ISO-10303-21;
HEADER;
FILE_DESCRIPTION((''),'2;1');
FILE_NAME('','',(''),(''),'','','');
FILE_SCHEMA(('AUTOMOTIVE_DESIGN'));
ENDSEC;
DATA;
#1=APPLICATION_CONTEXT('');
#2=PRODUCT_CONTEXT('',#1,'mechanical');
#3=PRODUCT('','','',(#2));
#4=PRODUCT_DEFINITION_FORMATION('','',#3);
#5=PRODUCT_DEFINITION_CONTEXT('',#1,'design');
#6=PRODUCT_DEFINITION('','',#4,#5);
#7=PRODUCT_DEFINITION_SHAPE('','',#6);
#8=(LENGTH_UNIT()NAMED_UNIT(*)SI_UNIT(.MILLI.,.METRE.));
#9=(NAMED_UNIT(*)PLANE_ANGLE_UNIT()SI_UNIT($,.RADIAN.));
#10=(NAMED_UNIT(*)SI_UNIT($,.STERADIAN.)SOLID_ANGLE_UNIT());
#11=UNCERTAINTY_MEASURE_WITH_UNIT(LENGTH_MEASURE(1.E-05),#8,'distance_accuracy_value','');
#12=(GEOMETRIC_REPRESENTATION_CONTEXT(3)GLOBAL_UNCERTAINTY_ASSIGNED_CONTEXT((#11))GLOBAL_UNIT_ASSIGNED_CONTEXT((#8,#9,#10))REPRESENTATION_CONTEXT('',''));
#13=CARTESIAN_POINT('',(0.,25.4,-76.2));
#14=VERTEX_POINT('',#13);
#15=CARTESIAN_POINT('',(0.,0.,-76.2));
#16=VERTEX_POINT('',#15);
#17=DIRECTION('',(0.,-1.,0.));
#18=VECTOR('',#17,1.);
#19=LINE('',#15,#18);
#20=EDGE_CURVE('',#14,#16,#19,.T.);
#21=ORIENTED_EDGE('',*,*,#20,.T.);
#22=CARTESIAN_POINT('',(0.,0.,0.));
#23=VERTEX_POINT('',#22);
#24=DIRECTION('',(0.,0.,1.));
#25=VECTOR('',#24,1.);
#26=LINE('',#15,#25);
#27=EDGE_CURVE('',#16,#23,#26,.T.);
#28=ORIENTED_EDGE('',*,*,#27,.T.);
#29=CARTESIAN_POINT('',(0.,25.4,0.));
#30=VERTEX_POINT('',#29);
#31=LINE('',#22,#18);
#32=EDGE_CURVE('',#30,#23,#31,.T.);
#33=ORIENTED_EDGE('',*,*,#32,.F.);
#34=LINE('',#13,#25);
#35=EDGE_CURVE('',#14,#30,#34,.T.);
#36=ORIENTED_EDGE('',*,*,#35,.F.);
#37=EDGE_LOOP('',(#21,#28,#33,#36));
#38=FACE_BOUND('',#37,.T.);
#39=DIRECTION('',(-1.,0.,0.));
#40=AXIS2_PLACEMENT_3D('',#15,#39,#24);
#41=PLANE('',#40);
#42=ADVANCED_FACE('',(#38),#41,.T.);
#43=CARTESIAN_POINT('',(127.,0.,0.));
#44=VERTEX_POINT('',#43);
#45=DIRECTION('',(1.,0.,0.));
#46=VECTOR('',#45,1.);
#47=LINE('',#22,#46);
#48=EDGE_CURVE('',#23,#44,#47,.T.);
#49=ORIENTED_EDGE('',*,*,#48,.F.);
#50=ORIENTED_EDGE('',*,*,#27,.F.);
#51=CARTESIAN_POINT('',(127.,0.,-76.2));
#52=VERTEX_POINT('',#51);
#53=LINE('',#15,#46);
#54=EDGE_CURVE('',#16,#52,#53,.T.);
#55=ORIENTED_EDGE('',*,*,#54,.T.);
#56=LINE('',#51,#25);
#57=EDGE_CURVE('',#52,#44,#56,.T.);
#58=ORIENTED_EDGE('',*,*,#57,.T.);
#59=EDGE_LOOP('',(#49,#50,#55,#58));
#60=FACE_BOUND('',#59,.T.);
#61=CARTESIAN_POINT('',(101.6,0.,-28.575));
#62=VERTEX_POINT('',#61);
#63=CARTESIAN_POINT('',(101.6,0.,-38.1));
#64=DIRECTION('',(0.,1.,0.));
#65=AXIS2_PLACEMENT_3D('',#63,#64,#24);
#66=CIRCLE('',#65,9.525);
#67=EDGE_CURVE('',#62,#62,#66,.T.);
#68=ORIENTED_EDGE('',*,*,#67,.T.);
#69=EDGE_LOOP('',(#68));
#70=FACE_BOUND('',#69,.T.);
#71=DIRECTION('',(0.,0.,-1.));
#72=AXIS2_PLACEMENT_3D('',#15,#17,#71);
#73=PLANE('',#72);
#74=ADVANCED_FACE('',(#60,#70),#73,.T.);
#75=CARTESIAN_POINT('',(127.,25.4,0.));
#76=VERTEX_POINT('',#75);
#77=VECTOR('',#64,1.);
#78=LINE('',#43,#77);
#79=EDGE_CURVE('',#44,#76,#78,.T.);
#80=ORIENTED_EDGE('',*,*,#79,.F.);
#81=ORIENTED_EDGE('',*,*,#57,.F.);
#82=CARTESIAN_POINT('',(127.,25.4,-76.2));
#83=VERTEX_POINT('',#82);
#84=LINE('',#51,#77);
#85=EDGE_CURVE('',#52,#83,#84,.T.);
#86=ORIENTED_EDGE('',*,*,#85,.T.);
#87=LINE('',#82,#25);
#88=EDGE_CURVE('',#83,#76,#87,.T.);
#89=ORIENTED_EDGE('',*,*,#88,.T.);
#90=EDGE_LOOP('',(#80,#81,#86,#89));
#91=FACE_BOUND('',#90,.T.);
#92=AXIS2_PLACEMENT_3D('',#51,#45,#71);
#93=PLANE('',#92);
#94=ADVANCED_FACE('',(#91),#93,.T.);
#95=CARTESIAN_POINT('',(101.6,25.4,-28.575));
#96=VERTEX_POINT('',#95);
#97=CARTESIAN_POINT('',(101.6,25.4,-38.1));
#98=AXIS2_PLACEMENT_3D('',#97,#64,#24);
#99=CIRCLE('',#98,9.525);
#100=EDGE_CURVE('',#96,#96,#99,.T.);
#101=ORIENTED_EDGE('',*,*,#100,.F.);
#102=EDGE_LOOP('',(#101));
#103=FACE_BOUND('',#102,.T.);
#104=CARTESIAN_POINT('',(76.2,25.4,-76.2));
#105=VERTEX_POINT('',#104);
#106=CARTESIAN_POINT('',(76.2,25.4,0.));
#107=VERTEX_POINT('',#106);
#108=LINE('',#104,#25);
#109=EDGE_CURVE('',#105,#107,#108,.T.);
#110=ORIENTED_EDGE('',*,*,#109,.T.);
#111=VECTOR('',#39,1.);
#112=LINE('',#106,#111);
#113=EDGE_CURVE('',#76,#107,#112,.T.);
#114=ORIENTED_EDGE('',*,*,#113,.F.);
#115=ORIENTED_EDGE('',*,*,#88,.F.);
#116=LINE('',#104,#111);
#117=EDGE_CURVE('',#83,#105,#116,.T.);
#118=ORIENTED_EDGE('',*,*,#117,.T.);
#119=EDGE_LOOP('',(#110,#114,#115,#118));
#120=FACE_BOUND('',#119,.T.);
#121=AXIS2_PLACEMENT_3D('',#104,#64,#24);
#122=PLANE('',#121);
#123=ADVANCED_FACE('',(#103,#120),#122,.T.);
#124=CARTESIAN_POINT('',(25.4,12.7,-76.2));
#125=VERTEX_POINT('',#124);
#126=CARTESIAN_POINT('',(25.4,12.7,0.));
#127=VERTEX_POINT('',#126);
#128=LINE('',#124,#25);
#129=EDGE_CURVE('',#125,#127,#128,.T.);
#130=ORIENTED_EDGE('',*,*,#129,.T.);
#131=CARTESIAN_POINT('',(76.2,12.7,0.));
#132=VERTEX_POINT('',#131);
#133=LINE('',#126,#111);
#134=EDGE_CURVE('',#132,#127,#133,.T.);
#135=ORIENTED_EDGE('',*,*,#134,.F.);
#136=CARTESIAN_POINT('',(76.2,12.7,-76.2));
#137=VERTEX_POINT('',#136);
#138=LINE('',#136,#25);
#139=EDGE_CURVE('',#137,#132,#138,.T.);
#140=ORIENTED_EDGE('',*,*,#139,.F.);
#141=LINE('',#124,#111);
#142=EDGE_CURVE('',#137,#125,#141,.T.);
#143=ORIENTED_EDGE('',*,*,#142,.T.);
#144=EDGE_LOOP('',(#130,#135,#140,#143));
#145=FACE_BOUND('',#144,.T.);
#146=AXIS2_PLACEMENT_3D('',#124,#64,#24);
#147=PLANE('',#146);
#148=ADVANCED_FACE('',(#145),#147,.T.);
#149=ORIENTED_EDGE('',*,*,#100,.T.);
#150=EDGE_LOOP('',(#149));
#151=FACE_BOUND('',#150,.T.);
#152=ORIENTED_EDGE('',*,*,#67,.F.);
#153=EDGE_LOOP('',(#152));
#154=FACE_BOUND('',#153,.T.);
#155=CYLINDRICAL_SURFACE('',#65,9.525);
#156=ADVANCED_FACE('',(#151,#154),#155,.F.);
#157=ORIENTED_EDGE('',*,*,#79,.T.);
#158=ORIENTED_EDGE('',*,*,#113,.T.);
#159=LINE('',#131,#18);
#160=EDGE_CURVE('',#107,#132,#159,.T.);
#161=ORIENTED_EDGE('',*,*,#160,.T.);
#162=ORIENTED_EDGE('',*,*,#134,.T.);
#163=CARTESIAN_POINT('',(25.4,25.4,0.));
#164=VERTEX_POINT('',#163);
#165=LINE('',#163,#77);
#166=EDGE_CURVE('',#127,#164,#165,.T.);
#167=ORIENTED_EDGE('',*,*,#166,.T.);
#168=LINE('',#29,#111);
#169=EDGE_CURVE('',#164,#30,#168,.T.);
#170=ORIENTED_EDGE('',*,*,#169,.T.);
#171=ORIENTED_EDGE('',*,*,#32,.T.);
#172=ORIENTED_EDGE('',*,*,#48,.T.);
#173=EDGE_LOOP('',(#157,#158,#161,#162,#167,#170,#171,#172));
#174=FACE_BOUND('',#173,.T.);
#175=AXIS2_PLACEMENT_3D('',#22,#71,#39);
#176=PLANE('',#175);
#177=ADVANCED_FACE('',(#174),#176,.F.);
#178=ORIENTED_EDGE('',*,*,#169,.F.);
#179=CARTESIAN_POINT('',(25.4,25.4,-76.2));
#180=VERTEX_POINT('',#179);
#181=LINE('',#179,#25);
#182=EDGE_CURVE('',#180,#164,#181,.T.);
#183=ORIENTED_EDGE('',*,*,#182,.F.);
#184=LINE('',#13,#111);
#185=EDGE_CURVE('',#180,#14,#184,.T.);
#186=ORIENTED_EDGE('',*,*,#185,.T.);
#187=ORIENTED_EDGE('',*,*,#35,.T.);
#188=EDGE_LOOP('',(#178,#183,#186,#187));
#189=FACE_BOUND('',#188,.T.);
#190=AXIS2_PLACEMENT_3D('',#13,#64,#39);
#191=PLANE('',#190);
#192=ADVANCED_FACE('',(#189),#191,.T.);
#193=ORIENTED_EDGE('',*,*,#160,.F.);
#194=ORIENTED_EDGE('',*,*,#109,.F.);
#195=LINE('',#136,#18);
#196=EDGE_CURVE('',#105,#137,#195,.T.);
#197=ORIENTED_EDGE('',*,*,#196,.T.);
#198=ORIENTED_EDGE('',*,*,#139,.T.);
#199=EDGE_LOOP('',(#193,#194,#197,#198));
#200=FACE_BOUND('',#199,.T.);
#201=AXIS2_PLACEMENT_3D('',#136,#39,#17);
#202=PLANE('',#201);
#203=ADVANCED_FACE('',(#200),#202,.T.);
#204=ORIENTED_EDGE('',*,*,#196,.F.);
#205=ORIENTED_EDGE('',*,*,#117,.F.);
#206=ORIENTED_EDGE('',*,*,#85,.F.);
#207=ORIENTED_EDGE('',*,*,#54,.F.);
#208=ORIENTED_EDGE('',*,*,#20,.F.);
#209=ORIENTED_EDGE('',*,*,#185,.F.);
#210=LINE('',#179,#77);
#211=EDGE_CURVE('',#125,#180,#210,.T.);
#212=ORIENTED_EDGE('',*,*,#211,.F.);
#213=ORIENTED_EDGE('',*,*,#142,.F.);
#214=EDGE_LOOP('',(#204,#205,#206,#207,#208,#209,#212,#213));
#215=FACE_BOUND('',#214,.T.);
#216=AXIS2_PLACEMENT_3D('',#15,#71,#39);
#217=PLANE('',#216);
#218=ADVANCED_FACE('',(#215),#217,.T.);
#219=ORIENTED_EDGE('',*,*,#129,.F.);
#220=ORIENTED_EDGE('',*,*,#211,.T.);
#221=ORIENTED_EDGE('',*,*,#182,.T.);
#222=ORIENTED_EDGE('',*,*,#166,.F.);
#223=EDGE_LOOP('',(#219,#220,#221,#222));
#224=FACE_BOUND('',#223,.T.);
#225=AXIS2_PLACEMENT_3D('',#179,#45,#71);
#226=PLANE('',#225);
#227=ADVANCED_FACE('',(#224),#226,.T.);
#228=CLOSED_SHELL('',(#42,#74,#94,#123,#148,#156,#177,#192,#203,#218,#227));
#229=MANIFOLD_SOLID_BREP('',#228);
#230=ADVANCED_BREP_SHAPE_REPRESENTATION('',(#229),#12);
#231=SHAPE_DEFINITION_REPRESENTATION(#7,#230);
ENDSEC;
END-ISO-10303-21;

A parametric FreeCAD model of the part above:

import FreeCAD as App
import Part
import Sketcher
from FreeCAD import Vector
Q = App.Units.Quantity

doc = App.newDocument("Part")
params = doc.addObject("Spreadsheet::Sheet", "Params")
for row, (alias, value) in enumerate([
    ("sketch1_width", "1 in"),
    ("sketch1_width2", "5 in"),
    ("sketch1_height", "0.5 in"),
    ("pad1_length", "3 in"),
    ("sketch2_diameter", "0.75 in"),
], start=1):
    params.set(f"A{row}", alias)
    params.set(f"B{row}", "=" + value)
    params.setAlias(f"B{row}", alias)

body = doc.addObject("PartDesign::Body", "Body")

sketch1 = body.newObject("Sketcher::SketchObject", "Sketch")
sketch1.AttachmentSupport = (doc.getObject("XY_Plane"), [""])
sketch1.MapMode = "FlatFace"
sketch1.addGeometry(Part.LineSegment(Vector(25, 13, 0), Vector(25, 25, 0)), False)
sketch1.addGeometry(Part.LineSegment(Vector(25, 25, 0), Vector(0, 25, 0)), False)
sketch1.addGeometry(Part.LineSegment(Vector(0, 25, 0), Vector(0, 0, 0)), False)
sketch1.addGeometry(Part.LineSegment(Vector(0, 0, 0), Vector(127, 0, 0)), False)
sketch1.addGeometry(Part.LineSegment(Vector(127, 0, 0), Vector(127, 25, 0)), False)
sketch1.addGeometry(Part.LineSegment(Vector(127, 25, 0), Vector(76, 25, 0)), False)
sketch1.addGeometry(Part.LineSegment(Vector(76, 25, 0), Vector(76, 13, 0)), False)
sketch1.addGeometry(Part.LineSegment(Vector(76, 13, 0), Vector(25, 13, 0)), False)
sketch1.addConstraint(Sketcher.Constraint("Coincident", 0, 2, 1, 1))
sketch1.addConstraint(Sketcher.Constraint("Coincident", 1, 2, 2, 1))
sketch1.addConstraint(Sketcher.Constraint("Coincident", 2, 2, 3, 1))
sketch1.addConstraint(Sketcher.Constraint("Coincident", 3, 2, 4, 1))
sketch1.addConstraint(Sketcher.Constraint("Coincident", 4, 2, 5, 1))
sketch1.addConstraint(Sketcher.Constraint("Coincident", 5, 2, 6, 1))
sketch1.addConstraint(Sketcher.Constraint("Coincident", 6, 2, 7, 1))
sketch1.addConstraint(Sketcher.Constraint("Coincident", 7, 2, 0, 1))
sketch1.addConstraint(Sketcher.Constraint("Vertical", 0))
sketch1.addConstraint(Sketcher.Constraint("Horizontal", 1))
sketch1.addConstraint(Sketcher.Constraint("Vertical", 2))
sketch1.addConstraint(Sketcher.Constraint("Horizontal", 3))
sketch1.addConstraint(Sketcher.Constraint("Vertical", 4))
sketch1.addConstraint(Sketcher.Constraint("Horizontal", 5))
sketch1.addConstraint(Sketcher.Constraint("Vertical", 6))
sketch1.addConstraint(Sketcher.Constraint("Horizontal", 7))
sketch1.addConstraint(Sketcher.Constraint("Coincident", 2, 2, -1, 1))
sketch1.addConstraint(Sketcher.Constraint("Horizontal", 1, 2, 4, 2))
sketch1.addConstraint(Sketcher.Constraint("Equal", 5, 7))
sketch1.addConstraint(Sketcher.Constraint("Equal", 1, 2))
sketch1.addConstraint(Sketcher.Constraint("DistanceX", 1, 2, 1, 1, Q("1 in")))
sketch1.addConstraint(Sketcher.Constraint("DistanceX", 3, 1, 3, 2, Q("5 in")))
sketch1.addConstraint(Sketcher.Constraint("DistanceY", 0, 1, 0, 2, Q("0.5 in")))
sketch1.setExpression("Constraints[20]", "Params.sketch1_width")
sketch1.setExpression("Constraints[21]", "Params.sketch1_width2")
sketch1.setExpression("Constraints[22]", "Params.sketch1_height")
pad1 = body.newObject("PartDesign::Pad", "Pad")
pad1.Profile = sketch1
pad1.setExpression("Length", "Params.pad1_length")
pad1.Reversed = True

sketch2 = body.newObject("Sketcher::SketchObject", "Sketch001")
sketch2.AttachmentSupport = (doc.getObject("XZ_Plane"), [""])
sketch2.MapMode = "FlatFace"
sketch2.AttachmentOffset = App.Placement(Vector(0, 0, -1 * 25.4), App.Rotation())
sketch2.addGeometry(Part.Circle(Vector(102, -38, 0), Vector(0, 0, 1), 10), False)
sketch2.addConstraint(Sketcher.Constraint("Diameter", 0, Q("0.75 in")))
sketch2.addConstraint(Sketcher.Constraint("DistanceX", -1, 1, 0, 3, Q("4 in")))
sketch2.addConstraint(Sketcher.Constraint("DistanceY", 0, 3, -1, 1, Q("1.5 in")))
sketch2.setExpression("Constraints[0]", "Params.sketch2_diameter")
pocket1 = body.newObject("PartDesign::Pocket", "Pocket")
pocket1.Profile = sketch2
pocket1.Type = "ThroughAll"
pocket1.Reversed = True

doc.recompute()
